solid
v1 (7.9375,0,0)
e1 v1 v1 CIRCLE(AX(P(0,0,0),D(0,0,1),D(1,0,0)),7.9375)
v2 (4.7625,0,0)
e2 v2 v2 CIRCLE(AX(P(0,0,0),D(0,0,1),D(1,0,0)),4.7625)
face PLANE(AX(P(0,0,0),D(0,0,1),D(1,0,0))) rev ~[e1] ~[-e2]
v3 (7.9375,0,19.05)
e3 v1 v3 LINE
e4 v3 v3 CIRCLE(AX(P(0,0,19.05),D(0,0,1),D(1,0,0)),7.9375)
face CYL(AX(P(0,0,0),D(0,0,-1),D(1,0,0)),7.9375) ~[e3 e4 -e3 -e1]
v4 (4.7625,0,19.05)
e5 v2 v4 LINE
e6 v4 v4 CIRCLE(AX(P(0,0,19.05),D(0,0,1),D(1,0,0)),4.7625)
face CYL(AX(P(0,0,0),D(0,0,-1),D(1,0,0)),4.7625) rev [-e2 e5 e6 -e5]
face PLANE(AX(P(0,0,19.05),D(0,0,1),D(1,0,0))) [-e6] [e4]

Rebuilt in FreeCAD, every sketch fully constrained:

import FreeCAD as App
import Part
import Sketcher
from FreeCAD import Vector
Q = App.Units.Quantity

doc = App.newDocument("Part")
body = doc.addObject("PartDesign::Body", "Body")

sketch1 = doc.addObject("Sketcher::SketchObject", "Sketch")
body.addObject(sketch1)
sketch1.AttachmentSupport = (doc.XY_Plane, [""])
sketch1.MapMode = "FlatFace"
sketch1.addGeometry([
    Part.Circle(Vector(0, 0, 0), Vector(0, 0, 1), 7.9375),
    Part.Circle(Vector(0, 0, 0), Vector(0, 0, 1), 4.7625),
], False)
sketch1.addConstraint([
    Sketcher.Constraint("Coincident", 0, 3, -1, 1),
    Sketcher.Constraint("Coincident", 1, 3, -1, 1),
    Sketcher.Constraint("Diameter", 0, Q("0.625 in")),
    Sketcher.Constraint("Diameter", 1, Q("0.375 in")),
])
pad1 = doc.addObject("PartDesign::Pad", "Pad")
body.addObject(pad1)
pad1.Profile = sketch1
pad1.Length = Q("0.75 in")

doc.recompute()
